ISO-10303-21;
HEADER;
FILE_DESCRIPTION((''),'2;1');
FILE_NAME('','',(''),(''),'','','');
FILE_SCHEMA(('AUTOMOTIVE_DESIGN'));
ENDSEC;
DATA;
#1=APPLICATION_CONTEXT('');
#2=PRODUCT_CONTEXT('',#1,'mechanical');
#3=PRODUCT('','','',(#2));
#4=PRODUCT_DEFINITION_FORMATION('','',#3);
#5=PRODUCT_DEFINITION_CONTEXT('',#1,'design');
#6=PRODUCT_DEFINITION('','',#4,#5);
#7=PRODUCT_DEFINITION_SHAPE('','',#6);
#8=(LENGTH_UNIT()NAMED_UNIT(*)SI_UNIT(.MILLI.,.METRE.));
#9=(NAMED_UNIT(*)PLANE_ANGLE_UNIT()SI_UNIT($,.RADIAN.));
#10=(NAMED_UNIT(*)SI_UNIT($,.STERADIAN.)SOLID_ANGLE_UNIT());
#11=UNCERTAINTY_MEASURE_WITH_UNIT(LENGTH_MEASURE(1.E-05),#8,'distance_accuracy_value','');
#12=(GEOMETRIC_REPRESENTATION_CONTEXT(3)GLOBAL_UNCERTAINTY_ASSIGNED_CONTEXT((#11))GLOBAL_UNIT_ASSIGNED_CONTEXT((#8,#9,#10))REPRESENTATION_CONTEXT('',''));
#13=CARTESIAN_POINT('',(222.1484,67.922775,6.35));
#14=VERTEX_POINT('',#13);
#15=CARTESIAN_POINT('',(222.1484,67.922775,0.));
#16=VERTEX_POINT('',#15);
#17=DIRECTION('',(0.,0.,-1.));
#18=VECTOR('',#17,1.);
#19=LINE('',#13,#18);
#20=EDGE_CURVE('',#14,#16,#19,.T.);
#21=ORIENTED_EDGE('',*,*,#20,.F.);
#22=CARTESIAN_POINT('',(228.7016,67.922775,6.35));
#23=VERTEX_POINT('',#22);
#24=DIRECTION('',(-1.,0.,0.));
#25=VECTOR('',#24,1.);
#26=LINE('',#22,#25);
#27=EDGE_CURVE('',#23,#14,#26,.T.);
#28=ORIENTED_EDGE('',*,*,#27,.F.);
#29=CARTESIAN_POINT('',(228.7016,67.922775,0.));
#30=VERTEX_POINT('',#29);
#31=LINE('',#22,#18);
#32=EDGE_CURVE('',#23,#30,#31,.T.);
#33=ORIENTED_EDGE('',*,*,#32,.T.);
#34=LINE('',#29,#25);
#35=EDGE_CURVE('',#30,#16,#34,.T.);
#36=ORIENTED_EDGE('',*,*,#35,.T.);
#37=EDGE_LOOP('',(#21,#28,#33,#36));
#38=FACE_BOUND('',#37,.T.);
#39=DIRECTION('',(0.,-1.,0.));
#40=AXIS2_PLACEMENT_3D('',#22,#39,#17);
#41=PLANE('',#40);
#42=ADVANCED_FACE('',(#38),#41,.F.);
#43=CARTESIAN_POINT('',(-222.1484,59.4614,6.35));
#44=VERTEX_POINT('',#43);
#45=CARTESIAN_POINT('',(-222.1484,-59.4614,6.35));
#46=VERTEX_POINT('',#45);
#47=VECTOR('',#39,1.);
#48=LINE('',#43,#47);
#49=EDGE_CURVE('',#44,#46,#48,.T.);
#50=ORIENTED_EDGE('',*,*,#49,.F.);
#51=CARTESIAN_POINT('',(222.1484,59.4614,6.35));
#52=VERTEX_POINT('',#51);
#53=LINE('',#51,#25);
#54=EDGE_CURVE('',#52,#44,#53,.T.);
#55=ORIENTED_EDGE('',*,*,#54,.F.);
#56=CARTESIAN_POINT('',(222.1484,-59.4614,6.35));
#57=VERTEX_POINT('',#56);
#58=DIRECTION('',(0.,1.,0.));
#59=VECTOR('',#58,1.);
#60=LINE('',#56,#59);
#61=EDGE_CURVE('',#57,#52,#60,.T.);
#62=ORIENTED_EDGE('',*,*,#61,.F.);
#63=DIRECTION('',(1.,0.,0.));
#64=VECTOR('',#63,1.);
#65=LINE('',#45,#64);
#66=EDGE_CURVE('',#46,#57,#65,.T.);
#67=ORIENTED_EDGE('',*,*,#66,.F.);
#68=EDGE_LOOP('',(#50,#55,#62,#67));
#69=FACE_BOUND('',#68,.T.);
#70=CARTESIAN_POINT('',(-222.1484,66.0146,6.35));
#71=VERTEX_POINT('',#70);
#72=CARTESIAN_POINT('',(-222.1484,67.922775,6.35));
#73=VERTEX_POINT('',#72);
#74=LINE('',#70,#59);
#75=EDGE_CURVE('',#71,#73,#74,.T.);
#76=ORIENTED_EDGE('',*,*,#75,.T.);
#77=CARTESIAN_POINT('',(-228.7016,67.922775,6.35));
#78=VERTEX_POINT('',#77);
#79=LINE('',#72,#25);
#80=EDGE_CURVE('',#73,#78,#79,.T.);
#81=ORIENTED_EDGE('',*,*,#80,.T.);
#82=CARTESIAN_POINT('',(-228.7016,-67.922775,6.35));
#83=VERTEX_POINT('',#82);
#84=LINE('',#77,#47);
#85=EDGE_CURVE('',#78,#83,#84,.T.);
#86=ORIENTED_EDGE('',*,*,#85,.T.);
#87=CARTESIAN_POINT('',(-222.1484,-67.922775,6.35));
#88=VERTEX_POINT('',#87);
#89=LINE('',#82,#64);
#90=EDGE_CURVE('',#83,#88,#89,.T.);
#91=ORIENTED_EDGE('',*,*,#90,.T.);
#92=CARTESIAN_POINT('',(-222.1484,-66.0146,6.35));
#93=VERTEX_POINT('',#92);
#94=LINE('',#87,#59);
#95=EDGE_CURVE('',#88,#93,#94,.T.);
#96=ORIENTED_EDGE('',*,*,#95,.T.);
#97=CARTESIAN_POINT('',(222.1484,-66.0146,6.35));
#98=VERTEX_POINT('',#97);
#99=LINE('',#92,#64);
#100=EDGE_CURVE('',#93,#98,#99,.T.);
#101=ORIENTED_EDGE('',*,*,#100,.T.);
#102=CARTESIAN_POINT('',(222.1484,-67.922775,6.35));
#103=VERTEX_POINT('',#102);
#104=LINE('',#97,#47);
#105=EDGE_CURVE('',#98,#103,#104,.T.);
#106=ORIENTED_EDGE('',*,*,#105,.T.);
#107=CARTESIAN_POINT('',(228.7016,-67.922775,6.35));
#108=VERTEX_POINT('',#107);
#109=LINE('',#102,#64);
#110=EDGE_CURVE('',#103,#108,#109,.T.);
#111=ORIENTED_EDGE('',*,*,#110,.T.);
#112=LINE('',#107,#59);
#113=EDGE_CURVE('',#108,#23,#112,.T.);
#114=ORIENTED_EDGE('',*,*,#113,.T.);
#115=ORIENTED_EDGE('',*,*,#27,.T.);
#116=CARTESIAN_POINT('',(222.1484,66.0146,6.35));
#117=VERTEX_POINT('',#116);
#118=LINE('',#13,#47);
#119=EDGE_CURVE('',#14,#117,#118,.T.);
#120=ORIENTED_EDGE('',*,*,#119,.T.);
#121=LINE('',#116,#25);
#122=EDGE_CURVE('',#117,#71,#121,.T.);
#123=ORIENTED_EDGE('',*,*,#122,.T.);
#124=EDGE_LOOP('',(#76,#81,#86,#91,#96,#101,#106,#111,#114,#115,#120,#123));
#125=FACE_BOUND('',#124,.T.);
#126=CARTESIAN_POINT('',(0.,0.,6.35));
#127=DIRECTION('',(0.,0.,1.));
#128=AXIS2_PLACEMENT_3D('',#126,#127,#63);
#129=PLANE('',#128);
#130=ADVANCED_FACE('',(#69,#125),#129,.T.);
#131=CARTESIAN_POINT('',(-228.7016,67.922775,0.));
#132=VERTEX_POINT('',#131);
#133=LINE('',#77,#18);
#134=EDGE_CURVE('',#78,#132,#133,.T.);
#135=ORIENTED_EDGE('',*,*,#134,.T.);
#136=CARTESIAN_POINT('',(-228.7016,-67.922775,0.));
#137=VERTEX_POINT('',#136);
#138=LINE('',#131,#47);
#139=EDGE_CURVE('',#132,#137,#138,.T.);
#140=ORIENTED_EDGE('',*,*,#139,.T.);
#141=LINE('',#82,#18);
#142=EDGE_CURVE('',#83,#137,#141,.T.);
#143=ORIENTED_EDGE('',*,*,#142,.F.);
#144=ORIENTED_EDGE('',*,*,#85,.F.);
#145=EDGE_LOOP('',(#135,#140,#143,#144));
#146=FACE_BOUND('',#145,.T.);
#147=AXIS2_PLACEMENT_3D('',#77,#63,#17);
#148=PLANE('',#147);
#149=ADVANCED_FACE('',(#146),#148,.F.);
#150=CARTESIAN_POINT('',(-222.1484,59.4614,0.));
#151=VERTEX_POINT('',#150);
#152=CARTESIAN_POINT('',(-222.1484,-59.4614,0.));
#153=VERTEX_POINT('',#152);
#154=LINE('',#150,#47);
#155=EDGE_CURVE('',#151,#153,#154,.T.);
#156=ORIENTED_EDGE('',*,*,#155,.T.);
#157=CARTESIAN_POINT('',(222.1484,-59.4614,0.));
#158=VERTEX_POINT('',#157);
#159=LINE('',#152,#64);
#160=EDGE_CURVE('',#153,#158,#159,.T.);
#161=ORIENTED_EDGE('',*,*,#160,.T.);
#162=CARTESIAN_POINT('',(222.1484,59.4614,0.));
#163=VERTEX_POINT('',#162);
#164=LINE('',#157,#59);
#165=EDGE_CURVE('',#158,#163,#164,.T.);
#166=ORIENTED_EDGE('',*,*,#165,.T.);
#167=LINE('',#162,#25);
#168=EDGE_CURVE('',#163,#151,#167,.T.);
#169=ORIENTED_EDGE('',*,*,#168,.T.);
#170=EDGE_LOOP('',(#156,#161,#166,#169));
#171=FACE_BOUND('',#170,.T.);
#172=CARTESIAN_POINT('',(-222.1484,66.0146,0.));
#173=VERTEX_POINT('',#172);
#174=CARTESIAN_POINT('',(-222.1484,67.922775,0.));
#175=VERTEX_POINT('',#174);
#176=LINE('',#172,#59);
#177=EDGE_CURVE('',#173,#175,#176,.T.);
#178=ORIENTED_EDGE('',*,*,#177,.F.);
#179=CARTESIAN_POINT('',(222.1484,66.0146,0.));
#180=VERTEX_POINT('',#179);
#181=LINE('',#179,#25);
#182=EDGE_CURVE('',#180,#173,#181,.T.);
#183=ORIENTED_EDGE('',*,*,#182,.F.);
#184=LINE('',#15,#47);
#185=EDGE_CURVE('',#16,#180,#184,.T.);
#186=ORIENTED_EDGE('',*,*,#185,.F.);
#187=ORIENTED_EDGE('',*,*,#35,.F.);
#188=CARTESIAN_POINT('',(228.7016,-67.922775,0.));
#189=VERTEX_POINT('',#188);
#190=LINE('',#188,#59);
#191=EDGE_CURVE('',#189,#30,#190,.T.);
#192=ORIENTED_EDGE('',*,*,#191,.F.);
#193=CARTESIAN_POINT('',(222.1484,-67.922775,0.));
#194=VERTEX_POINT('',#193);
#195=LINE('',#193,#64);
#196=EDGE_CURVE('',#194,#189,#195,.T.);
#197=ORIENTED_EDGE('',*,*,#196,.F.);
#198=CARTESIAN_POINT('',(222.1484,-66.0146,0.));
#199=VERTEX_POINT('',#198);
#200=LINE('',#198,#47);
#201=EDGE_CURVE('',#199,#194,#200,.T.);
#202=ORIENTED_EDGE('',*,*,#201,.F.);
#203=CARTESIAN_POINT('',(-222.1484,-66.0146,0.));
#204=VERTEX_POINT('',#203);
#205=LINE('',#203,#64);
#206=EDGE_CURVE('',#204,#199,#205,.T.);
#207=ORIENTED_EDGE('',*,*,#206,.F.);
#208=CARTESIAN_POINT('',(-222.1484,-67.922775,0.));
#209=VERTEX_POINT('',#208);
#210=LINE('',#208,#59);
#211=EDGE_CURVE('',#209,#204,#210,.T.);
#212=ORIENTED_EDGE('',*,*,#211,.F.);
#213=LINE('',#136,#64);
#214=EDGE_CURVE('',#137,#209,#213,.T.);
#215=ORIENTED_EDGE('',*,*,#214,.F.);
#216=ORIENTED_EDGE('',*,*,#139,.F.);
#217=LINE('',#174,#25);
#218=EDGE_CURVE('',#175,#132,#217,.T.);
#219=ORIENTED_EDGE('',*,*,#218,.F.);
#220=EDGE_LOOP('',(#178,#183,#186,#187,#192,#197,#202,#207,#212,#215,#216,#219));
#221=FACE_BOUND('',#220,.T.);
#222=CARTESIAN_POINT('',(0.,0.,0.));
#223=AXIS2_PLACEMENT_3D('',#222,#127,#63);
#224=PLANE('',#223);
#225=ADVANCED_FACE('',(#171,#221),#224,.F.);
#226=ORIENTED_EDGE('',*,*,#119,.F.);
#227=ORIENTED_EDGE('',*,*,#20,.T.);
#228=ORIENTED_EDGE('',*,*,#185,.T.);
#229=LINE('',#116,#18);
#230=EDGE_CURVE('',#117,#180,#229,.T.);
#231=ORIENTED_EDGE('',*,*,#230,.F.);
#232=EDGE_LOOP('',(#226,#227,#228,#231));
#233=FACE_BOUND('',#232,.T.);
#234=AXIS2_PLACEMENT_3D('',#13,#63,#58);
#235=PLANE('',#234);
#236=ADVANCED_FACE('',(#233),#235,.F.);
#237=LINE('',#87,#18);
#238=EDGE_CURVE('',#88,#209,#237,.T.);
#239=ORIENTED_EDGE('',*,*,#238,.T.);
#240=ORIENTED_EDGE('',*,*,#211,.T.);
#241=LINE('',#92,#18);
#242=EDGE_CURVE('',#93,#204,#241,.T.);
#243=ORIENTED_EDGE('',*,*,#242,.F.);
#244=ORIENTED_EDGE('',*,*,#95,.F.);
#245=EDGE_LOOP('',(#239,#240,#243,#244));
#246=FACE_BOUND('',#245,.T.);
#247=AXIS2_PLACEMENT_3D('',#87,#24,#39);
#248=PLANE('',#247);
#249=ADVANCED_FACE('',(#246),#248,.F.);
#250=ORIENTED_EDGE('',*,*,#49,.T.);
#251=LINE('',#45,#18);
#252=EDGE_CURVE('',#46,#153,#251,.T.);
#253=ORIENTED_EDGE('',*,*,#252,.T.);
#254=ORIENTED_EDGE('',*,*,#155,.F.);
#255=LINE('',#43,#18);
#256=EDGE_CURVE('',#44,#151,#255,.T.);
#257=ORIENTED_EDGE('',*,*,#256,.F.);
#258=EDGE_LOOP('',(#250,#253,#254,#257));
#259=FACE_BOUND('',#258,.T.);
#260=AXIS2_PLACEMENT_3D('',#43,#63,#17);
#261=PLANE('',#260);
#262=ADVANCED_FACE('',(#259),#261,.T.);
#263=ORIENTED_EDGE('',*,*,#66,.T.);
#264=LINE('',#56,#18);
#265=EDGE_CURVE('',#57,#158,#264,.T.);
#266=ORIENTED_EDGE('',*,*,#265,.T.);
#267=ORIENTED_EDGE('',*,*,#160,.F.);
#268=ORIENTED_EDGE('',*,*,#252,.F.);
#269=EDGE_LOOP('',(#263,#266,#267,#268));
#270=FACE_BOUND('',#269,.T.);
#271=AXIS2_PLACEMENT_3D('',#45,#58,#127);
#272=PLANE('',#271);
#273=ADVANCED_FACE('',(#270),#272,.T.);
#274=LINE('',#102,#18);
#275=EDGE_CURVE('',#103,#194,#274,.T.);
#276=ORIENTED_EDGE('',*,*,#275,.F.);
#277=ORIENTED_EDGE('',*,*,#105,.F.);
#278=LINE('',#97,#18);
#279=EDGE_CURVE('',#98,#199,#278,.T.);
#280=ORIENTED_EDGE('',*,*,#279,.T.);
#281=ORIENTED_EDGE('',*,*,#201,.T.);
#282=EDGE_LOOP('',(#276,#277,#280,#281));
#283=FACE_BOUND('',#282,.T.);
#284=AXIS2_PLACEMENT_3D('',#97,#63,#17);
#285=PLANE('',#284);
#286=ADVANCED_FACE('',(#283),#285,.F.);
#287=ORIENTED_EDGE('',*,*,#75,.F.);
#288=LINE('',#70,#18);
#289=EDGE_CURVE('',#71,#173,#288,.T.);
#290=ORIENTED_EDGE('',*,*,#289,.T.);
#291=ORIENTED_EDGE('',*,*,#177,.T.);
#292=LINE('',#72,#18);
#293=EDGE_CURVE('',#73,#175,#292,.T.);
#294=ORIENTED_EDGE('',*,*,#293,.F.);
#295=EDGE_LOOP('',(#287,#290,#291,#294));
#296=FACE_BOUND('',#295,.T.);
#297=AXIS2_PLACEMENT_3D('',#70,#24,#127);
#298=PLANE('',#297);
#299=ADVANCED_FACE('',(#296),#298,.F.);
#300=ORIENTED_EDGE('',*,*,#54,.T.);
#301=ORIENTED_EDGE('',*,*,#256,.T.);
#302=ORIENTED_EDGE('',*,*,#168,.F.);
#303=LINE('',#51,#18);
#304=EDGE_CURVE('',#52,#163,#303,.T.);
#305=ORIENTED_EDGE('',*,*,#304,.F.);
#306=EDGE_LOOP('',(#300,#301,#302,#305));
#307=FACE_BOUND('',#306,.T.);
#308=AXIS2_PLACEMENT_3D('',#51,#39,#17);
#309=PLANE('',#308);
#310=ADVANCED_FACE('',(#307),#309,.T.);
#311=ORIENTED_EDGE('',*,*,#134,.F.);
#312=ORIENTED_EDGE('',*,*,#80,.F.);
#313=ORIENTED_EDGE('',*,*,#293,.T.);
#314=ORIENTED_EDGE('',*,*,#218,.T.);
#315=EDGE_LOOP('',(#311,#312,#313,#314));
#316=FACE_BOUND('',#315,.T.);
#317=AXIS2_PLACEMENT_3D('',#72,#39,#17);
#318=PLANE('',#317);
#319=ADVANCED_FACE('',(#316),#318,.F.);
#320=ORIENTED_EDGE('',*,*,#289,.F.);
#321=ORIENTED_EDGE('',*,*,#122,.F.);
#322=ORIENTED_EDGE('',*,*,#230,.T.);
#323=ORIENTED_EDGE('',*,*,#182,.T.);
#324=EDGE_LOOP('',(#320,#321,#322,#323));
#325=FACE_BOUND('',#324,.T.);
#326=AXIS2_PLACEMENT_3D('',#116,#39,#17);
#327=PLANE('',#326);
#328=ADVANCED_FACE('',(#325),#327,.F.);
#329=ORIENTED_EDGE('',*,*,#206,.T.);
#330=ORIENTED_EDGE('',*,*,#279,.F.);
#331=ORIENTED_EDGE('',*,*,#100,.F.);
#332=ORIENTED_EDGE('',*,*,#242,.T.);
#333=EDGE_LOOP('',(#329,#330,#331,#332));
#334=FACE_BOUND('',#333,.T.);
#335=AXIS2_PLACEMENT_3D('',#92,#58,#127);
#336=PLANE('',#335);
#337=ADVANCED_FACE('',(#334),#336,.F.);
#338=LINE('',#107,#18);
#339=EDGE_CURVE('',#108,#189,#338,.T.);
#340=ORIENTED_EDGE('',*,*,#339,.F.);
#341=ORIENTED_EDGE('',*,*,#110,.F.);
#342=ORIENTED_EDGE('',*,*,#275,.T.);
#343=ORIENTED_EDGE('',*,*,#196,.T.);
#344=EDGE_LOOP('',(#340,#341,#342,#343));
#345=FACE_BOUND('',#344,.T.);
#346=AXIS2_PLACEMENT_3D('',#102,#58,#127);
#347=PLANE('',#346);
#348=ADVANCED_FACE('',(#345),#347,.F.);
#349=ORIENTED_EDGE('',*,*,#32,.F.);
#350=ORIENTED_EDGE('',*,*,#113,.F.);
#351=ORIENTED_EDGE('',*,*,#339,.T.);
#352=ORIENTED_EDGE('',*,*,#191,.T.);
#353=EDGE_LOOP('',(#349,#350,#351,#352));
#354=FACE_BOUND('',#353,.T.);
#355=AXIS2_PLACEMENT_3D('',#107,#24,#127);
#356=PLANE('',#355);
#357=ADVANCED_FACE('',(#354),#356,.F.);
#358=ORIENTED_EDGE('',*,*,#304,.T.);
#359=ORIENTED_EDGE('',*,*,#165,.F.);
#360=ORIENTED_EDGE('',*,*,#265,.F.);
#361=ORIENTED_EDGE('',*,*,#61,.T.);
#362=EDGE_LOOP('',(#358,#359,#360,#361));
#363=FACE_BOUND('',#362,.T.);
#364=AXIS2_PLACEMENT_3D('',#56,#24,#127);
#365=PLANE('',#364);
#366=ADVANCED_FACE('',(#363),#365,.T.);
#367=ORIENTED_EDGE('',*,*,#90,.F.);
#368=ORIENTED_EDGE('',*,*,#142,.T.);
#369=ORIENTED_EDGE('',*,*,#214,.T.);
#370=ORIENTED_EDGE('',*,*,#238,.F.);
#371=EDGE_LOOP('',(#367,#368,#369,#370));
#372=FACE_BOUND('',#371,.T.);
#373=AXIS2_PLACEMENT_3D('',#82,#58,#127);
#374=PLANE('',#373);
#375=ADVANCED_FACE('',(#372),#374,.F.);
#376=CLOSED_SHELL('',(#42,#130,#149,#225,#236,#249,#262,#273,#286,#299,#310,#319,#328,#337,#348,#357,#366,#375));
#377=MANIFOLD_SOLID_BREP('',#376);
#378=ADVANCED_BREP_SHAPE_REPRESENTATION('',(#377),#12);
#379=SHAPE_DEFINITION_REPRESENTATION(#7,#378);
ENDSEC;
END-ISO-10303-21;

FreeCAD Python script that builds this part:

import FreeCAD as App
import Part
import Sketcher

V = App.Vector
Q = App.Units.Quantity

doc = App.newDocument("Part")
body = doc.addObject("PartDesign::Body", "Body")

sketch1 = body.newObject("Sketcher::SketchObject", "Sketch")
sketch1.AttachmentSupport = (doc.getObject("XY_Plane"), [""])
sketch1.MapMode = "FlatFace"
sketch1.addGeometry([
    Part.LineSegment(V(222.1, -67.9, 0), V(228.7, -67.9, 0)),
    Part.LineSegment(V(228.7, -67.9, 0), V(228.7, 67.9, 0)),
    Part.LineSegment(V(228.7, 67.9, 0), V(222.1, 67.9, 0)),
    Part.LineSegment(V(222.1, 67.9, 0), V(222.1, 66, 0)),
    Part.LineSegment(V(222.1, 66, 0), V(-222.1, 66, 0)),
    Part.LineSegment(V(-222.1, 66, 0), V(-222.1, 67.9, 0)),
    Part.LineSegment(V(-222.1, 67.9, 0), V(-228.7, 67.9, 0)),
    Part.LineSegment(V(-228.7, 67.9, 0), V(-228.7, -67.9, 0)),
    Part.LineSegment(V(-228.7, -67.9, 0), V(-222.1, -67.9, 0)),
    Part.LineSegment(V(-222.1, -67.9, 0), V(-222.1, -66, 0)),
    Part.LineSegment(V(-222.1, -66, 0), V(222.1, -66, 0)),
    Part.LineSegment(V(222.1, -66, 0), V(222.1, -67.9, 0)),
    Part.LineSegment(V(222.1, -59.5, 0), V(-222.1, -59.5, 0)),
    Part.LineSegment(V(-222.1, -59.5, 0), V(-222.1, 59.5, 0)),
    Part.LineSegment(V(-222.1, 59.5, 0), V(222.1, 59.5, 0)),
    Part.LineSegment(V(222.1, 59.5, 0), V(222.1, -59.5, 0)),
], False)
sketch1.addConstraint([
    Sketcher.Constraint("Coincident", 0, 2, 1, 1),
    Sketcher.Constraint("Coincident", 1, 2, 2, 1),
    Sketcher.Constraint("Coincident", 2, 2, 3, 1),
    Sketcher.Constraint("Coincident", 3, 2, 4, 1),
    Sketcher.Constraint("Coincident", 4, 2, 5, 1),
    Sketcher.Constraint("Coincident", 5, 2, 6, 1),
    Sketcher.Constraint("Coincident", 6, 2, 7, 1),
    Sketcher.Constraint("Coincident", 7, 2, 8, 1),
    Sketcher.Constraint("Coincident", 8, 2, 9, 1),
    Sketcher.Constraint("Coincident", 9, 2, 10, 1),
    Sketcher.Constraint("Coincident", 10, 2, 11, 1),
    Sketcher.Constraint("Coincident", 11, 2, 0, 1),
    Sketcher.Constraint("Coincident", 12, 2, 13, 1),
    Sketcher.Constraint("Coincident", 13, 2, 14, 1),
    Sketcher.Constraint("Coincident", 14, 2, 15, 1),
    Sketcher.Constraint("Coincident", 15, 2, 12, 1),
    Sketcher.Constraint("Horizontal", 0),
    Sketcher.Constraint("Vertical", 1),
    Sketcher.Constraint("Horizontal", 2),
    Sketcher.Constraint("Vertical", 3),
    Sketcher.Constraint("Horizontal", 4),
    Sketcher.Constraint("Vertical", 5),
    Sketcher.Constraint("Horizontal", 6),
    Sketcher.Constraint("Vertical", 7),
    Sketcher.Constraint("Horizontal", 8),
    Sketcher.Constraint("Vertical", 9),
    Sketcher.Constraint("Horizontal", 10),
    Sketcher.Constraint("Vertical", 11),
    Sketcher.Constraint("Horizontal", 12),
    Sketcher.Constraint("Vertical", 13),
    Sketcher.Constraint("Horizontal", 14),
    Sketcher.Constraint("Vertical", 15),
    Sketcher.Constraint("Symmetric", 0, 2, 6, 2, -1, 1),
    Sketcher.Constraint("Symmetric", 2, 2, 8, 2, -1, 1),
    Sketcher.Constraint("Symmetric", 4, 2, 10, 2, -1, 1),
    Sketcher.Constraint("Symmetric", 12, 2, 14, 2, -1, 1),
    Sketcher.Constraint("Symmetric", 2, 2, 5, 2, -2),
    Sketcher.Constraint("Vertical", 9, 2, 12, 2),
    Sketcher.Constraint("DistanceX", 0, 1, 0, 2, Q("0.258 in")),
    Sketcher.Constraint("DistanceX", 4, 2, 4, 1, Q("17.492 in")),
    Sketcher.Constraint("DistanceY", 13, 1, 13, 2, Q("4.682 in")),
    Sketcher.Constraint("DistanceY", 12, 2, 4, 2, Q("4.94 in")),
    Sketcher.Constraint("DistanceY", 1, 1, 1, 2, 135.84555),
])
pad1 = body.newObject("PartDesign::Pad", "Pad")
pad1.Profile = sketch1
pad1.Length = Q("0.25 in")

doc.recompute()
